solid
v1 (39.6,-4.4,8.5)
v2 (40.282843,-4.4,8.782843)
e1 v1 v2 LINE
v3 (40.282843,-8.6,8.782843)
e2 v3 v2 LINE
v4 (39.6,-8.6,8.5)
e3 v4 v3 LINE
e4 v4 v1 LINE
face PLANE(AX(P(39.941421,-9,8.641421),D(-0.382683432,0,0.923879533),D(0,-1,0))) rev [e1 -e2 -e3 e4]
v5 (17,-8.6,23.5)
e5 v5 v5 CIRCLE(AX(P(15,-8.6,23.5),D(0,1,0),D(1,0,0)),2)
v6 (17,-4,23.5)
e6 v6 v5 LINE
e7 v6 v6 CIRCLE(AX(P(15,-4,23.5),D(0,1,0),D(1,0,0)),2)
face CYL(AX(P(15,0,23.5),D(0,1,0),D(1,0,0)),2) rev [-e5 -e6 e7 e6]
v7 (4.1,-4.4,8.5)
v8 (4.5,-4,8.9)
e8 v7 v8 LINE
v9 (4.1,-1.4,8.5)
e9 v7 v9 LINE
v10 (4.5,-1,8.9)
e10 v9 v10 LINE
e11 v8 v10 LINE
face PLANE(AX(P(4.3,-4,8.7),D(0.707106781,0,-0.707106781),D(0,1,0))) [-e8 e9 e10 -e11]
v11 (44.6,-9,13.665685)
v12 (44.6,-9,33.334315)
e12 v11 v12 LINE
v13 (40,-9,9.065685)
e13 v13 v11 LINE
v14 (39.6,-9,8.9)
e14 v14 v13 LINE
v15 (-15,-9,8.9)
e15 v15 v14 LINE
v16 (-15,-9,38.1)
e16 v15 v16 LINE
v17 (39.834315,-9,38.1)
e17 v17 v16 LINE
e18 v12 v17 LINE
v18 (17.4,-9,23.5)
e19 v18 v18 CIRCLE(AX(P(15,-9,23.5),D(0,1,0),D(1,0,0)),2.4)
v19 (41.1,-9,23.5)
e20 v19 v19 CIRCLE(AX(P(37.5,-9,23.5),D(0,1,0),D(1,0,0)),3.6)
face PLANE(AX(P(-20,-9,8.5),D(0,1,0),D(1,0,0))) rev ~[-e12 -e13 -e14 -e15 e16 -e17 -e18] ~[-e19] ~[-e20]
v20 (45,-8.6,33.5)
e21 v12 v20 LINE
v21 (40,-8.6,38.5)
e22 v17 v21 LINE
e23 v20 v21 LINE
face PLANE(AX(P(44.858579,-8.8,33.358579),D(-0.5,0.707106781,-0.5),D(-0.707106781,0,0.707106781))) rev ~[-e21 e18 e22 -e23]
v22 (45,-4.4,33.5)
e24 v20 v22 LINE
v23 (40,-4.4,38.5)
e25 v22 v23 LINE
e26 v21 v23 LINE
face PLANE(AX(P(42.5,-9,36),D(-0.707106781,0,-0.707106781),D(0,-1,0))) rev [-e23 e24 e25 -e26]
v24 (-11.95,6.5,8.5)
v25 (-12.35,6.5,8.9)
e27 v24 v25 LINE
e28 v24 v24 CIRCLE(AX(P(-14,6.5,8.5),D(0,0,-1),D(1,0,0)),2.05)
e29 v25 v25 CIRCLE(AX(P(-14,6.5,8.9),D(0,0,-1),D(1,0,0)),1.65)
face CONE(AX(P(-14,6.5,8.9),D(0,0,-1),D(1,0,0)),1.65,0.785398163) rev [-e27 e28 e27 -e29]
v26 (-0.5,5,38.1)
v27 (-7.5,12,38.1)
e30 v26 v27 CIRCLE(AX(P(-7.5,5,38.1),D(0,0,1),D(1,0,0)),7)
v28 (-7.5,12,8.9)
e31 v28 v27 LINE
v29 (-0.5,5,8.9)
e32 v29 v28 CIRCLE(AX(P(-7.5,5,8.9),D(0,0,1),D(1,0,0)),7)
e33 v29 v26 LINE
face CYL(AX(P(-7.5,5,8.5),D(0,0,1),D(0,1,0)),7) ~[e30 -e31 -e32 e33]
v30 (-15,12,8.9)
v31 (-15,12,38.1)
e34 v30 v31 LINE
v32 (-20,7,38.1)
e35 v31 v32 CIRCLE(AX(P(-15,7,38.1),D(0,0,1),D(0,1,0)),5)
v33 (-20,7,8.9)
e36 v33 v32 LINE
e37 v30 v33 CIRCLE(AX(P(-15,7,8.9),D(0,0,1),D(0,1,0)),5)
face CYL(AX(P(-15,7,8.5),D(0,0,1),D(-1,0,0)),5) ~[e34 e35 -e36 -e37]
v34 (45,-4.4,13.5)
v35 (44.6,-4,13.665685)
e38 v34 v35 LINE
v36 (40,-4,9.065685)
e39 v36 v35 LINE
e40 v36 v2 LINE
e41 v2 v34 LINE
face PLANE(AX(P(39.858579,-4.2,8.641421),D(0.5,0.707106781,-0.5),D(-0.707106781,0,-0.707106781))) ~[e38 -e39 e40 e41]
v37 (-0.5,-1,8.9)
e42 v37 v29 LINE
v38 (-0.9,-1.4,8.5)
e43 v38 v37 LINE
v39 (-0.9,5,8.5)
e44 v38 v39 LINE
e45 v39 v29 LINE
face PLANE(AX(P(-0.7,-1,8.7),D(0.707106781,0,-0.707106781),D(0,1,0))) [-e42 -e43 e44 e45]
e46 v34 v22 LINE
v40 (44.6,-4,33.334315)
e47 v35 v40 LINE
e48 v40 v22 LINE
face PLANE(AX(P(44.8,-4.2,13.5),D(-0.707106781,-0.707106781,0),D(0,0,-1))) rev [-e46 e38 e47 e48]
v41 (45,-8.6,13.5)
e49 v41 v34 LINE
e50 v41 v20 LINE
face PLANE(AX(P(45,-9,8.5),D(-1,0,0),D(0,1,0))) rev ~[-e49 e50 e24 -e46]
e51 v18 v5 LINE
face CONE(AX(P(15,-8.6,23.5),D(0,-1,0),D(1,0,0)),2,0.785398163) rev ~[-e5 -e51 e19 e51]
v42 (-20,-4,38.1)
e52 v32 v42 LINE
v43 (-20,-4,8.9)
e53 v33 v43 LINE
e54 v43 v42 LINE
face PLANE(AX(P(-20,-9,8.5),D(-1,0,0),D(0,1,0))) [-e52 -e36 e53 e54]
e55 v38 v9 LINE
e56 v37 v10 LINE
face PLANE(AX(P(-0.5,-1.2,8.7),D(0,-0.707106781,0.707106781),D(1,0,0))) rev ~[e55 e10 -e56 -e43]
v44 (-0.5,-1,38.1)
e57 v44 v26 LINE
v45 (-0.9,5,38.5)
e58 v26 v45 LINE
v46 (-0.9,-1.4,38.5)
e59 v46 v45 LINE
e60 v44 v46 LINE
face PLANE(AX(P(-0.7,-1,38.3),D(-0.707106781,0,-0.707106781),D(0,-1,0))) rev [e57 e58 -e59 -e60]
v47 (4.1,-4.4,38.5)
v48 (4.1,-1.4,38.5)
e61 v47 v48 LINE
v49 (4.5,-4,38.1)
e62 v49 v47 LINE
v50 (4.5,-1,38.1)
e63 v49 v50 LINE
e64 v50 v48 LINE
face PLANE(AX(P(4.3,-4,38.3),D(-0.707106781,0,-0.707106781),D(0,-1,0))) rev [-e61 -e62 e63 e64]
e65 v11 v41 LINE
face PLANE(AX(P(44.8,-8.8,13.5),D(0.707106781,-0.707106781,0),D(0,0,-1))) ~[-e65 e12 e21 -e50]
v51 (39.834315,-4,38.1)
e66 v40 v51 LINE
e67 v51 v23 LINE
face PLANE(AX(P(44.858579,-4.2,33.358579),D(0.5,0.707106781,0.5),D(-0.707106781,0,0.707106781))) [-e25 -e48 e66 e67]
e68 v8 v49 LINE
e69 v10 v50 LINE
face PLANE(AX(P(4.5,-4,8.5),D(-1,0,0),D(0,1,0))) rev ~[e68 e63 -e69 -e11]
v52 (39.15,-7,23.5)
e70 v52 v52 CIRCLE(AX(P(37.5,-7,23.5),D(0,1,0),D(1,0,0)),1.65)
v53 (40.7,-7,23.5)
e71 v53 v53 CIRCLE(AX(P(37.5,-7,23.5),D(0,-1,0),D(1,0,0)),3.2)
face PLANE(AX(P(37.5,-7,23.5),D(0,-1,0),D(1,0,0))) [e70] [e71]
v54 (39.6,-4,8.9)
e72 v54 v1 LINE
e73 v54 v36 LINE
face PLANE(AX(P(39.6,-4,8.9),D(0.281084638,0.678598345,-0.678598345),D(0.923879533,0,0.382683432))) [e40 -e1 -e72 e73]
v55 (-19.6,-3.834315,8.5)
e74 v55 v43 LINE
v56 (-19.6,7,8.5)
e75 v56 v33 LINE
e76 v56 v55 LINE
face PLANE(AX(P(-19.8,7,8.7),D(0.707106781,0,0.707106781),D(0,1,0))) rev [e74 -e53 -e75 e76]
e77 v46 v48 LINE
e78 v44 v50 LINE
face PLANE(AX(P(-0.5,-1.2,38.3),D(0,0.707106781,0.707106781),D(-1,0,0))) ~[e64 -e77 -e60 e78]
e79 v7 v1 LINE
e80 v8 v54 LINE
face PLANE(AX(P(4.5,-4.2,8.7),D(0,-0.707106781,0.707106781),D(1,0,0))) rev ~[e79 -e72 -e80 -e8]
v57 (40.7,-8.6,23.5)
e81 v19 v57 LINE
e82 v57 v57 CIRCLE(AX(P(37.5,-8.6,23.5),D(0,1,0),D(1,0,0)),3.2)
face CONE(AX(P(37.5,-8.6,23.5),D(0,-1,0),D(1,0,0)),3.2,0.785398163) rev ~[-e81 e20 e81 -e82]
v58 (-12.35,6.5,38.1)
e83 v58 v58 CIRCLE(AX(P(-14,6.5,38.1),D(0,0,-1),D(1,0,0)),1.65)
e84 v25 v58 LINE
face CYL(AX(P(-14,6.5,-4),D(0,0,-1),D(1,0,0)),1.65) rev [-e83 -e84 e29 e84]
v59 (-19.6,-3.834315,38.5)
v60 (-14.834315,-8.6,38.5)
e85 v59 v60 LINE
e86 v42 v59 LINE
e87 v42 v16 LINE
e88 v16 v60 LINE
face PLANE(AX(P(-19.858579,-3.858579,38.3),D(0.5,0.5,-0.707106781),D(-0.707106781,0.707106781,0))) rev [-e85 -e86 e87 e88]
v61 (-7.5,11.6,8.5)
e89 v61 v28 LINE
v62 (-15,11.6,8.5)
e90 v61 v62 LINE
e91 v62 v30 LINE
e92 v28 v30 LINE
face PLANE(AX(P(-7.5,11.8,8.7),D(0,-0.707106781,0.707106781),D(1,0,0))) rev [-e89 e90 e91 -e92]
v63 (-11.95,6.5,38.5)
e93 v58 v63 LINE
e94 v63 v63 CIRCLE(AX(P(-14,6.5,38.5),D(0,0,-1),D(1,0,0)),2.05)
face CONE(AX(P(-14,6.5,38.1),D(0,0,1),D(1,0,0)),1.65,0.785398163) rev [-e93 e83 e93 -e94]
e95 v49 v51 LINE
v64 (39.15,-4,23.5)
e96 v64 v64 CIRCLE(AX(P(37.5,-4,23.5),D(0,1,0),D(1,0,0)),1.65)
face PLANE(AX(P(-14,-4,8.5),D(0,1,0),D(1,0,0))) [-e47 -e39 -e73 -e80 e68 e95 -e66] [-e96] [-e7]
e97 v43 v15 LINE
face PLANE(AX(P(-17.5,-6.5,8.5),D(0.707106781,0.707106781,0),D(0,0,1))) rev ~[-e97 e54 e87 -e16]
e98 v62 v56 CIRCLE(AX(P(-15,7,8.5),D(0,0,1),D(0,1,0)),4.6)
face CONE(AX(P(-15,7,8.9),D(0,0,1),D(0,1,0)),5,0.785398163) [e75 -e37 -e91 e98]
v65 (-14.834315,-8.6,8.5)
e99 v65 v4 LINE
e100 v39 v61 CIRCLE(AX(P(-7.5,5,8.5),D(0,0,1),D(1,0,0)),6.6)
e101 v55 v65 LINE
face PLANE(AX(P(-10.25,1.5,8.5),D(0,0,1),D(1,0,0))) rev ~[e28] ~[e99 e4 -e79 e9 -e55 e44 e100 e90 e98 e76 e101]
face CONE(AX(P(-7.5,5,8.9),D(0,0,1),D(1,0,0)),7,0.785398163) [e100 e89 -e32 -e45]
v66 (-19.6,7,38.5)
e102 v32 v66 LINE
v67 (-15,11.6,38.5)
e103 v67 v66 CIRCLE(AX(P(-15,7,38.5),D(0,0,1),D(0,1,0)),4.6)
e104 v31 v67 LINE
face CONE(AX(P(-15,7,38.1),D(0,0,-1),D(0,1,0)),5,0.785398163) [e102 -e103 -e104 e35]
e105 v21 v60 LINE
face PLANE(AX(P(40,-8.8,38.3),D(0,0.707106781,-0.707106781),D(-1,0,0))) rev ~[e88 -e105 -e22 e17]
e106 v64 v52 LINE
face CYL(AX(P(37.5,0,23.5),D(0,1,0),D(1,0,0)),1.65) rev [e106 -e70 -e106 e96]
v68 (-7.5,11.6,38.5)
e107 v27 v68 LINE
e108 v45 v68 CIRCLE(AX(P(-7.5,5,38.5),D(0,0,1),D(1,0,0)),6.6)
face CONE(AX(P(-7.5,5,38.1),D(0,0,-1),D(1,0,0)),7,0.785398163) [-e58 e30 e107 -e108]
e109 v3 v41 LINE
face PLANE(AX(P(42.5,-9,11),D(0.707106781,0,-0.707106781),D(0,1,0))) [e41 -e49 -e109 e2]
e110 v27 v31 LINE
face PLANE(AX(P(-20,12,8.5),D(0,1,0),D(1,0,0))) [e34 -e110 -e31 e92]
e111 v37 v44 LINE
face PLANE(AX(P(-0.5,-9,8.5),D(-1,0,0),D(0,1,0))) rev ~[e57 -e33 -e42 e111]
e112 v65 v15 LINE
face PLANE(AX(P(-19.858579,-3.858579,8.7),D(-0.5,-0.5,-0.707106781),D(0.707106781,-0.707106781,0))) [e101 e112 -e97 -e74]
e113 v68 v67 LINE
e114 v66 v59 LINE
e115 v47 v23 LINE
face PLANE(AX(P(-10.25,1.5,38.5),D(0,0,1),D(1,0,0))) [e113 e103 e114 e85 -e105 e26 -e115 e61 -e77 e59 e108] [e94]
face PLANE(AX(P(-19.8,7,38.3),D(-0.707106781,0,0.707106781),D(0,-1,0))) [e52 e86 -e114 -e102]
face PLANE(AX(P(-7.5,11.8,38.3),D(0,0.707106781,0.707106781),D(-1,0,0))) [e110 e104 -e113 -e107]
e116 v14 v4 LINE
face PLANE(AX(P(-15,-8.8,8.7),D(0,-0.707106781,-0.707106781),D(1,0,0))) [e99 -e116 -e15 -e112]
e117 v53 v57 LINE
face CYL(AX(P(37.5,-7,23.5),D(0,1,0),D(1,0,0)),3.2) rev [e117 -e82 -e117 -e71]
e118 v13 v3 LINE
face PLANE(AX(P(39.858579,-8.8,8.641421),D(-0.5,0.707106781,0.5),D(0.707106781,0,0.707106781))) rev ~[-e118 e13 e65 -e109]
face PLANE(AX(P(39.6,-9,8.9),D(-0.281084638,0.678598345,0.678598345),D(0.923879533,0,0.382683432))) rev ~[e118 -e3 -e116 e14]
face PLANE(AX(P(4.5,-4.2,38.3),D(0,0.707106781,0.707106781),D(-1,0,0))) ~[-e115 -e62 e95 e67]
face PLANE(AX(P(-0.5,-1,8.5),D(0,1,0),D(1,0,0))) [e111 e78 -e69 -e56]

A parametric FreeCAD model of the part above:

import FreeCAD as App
import Part
import Sketcher

V = App.Vector


def edges_at(feature, points):
    """Names of the edges that pass closest to the given points."""
    edges = feature.Shape.Edges
    near = lambda p: min(range(len(edges)), key=lambda i: edges[i].distToShape(Part.Vertex(*p))[0])
    return sorted({f"Edge{near(p) + 1}" for p in points})


def add_polygon(sketch, points):
    """Adds a closed chain of lines whose ends are joined by coincident constraints."""
    first, n = sketch.GeometryCount, len(points)
    for a, b in zip(points, points[1:] + points[:1]):
        sketch.addGeometry(Part.LineSegment(App.Vector(*a, 0), App.Vector(*b, 0)), False)
    for i in range(n):
        sketch.addConstraint(Sketcher.Constraint("Coincident", first + i, 2, first + (i + 1) % n, 1))

doc = App.newDocument("Part")
body = doc.addObject("PartDesign::Body", "Body")

# Sketch on XZ plane
sketch1 = body.newObject("Sketcher::SketchObject", "Sketch")
sketch1.AttachmentSupport = (doc.getObject("XZ_Plane"), [""])
sketch1.MapMode = "FlatFace"
sketch1.addGeometry(Part.Circle(V(37.5, 23.5, 0), V(0, 0, 1), 1.65), False)
sketch1.addConstraint([
    Sketcher.Constraint("Diameter", 0, 3.3),
    Sketcher.Constraint("DistanceX", -1, 1, 0, 3, 37.5),
    Sketcher.Constraint("DistanceY", -1, 1, 0, 3, 23.5),
])
pad1 = body.newObject("PartDesign::Pad", "Pad")
pad1.Profile = sketch1
pad1.Length = 10
body2 = doc.addObject("PartDesign::Body", "Body001")

# Sketch on XZ plane
sketch2 = body2.newObject("Sketcher::SketchObject", "Sketch001")
sketch2.AttachmentSupport = (doc.getObject("XZ_Plane001"), [""])
sketch2.MapMode = "FlatFace"
sketch2.AttachmentOffset = App.Placement(V(0, 0, 7), App.Rotation())
sketch2.addGeometry(Part.Circle(V(37.5, 23.5, 0), V(0, 0, 1), 3.2), False)
sketch2.addConstraint([
    Sketcher.Constraint("Diameter", 0, 6.4),
    Sketcher.Constraint("DistanceX", -1, 1, 0, 3, 37.5),
    Sketcher.Constraint("DistanceY", -1, 1, 0, 3, 23.5),
])
pad2 = body2.newObject("PartDesign::Pad", "Pad001")
pad2.Profile = sketch2
pad2.Length = 10
doc.recompute()

boolean = body2.newObject("PartDesign::Boolean", "Boolean")
boolean.Type = "Fuse"
boolean.addObjects([body])
body3 = doc.addObject("PartDesign::Body", "Body002")

# Sketch on XZ plane
sketch3 = body3.newObject("Sketcher::SketchObject", "Sketch002")
sketch3.AttachmentSupport = (doc.getObject("XZ_Plane002"), [""])
sketch3.MapMode = "FlatFace"
sketch3.addGeometry(Part.Circle(V(15, 23.5, 0), V(0, 0, 1), 2), False)
sketch3.addConstraint([
    Sketcher.Constraint("Diameter", 0, 4.0),
    Sketcher.Constraint("DistanceX", -1, 1, 0, 3, 15.0),
    Sketcher.Constraint("DistanceY", -1, 1, 0, 3, 23.5),
])
pad3 = body3.newObject("PartDesign::Pad", "Pad002")
pad3.Profile = sketch3
pad3.Length = 10
body4 = doc.addObject("PartDesign::Body", "Body003")

# Sketch on XY plane
sketch4 = body4.newObject("Sketcher::SketchObject", "Sketch003")
sketch4.AttachmentSupport = (doc.getObject("XY_Plane003"), [""])
sketch4.MapMode = "FlatFace"
sketch4.AttachmentOffset = App.Placement(V(0, 0, -4), App.Rotation())
sketch4.addGeometry(Part.Circle(V(-14, 6.5, 0), V(0, 0, 1), 1.65), False)
sketch4.addConstraint([
    Sketcher.Constraint("Diameter", 0, 3.3),
    Sketcher.Constraint("DistanceX", 0, 3, -1, 1, 14.0),
    Sketcher.Constraint("DistanceY", -1, 1, 0, 3, 6.5),
])
pad4 = body4.newObject("PartDesign::Pad", "Pad003")
pad4.Profile = sketch4
pad4.Length = 50
body5 = doc.addObject("PartDesign::Body", "Body004")

# Sketch on XY plane
sketch5 = body5.newObject("Sketcher::SketchObject", "Sketch004")
sketch5.AttachmentSupport = (doc.getObject("XY_Plane004"), [""])
sketch5.MapMode = "FlatFace"
sketch5.AttachmentOffset = App.Placement(V(0, 0, 8.5), App.Rotation())
add_polygon(sketch5, [(-0.5, -1), (-0.5, -4), (4.5, -4), (4.5, -1)])  # lines 0-3
sketch5.addConstraint([
    Sketcher.Constraint("Vertical", 0),
    Sketcher.Constraint("Horizontal", 1),
    Sketcher.Constraint("Vertical", 2),
    Sketcher.Constraint("Horizontal", 3),
    Sketcher.Constraint("DistanceX", 1, 1, 1, 2, 5.0),
    Sketcher.Constraint("DistanceY", 0, 2, 0, 1, 3.0),
    Sketcher.Constraint("DistanceY", 0, 2, -1, 1, 4.0),
    Sketcher.Constraint("DistanceX", 0, 2, -1, 1, 0.5),
])
pad5 = body5.newObject("PartDesign::Pad", "Pad004")
pad5.Profile = sketch5
pad5.Length = 30
body6 = doc.addObject("PartDesign::Body", "Body005")

# Sketch on XY plane
sketch6 = body6.newObject("Sketcher::SketchObject", "Sketch005")
sketch6.AttachmentSupport = (doc.getObject("XY_Plane005"), [""])
sketch6.MapMode = "FlatFace"
sketch6.AttachmentOffset = App.Placement(V(0, 0, 8.5), App.Rotation())
add_polygon(sketch6, [(-20, 12), (-20, -9), (-0.5, -9), (-0.5, 12)])  # lines 0-3
sketch6.addConstraint([
    Sketcher.Constraint("Vertical", 0),
    Sketcher.Constraint("Horizontal", 1),
    Sketcher.Constraint("Vertical", 2),
    Sketcher.Constraint("Horizontal", 3),
    Sketcher.Constraint("DistanceY", 0, 2, 0, 1, 21.0),
    Sketcher.Constraint("DistanceX", 1, 1, 1, 2, 19.5),
    Sketcher.Constraint("DistanceX", 0, 2, -1, 1, 20.0),
    Sketcher.Constraint("DistanceY", 0, 2, -1, 1, 9.0),
])
pad6 = body6.newObject("PartDesign::Pad", "Pad005")
pad6.Profile = sketch6
pad6.Length = 30
body7 = doc.addObject("PartDesign::Body", "Body006")

# Sketch on XY plane
sketch7 = body7.newObject("Sketcher::SketchObject", "Sketch006")
sketch7.AttachmentSupport = (doc.getObject("XY_Plane006"), [""])
sketch7.MapMode = "FlatFace"
sketch7.AttachmentOffset = App.Placement(V(0, 0, 8.5), App.Rotation())
add_polygon(sketch7, [(-14, -4), (-14, -9), (45, -9), (45, -4)])  # lines 0-3
sketch7.addConstraint([
    Sketcher.Constraint("Vertical", 0),
    Sketcher.Constraint("Horizontal", 1),
    Sketcher.Constraint("Vertical", 2),
    Sketcher.Constraint("Horizontal", 3),
    Sketcher.Constraint("DistanceX", 1, 1, 1, 2, 59.0),
    Sketcher.Constraint("DistanceY", 0, 2, 0, 1, 5.0),
    Sketcher.Constraint("DistanceX", 0, 2, -1, 1, 14.0),
    Sketcher.Constraint("DistanceY", 0, 2, -1, 1, 9.0),
])
pad7 = body7.newObject("PartDesign::Pad", "Pad006")
pad7.Profile = sketch7
pad7.Length = 30
doc.recompute()

boolean2 = body7.newObject("PartDesign::Boolean", "Boolean001")
boolean2.Type = "Fuse"
boolean2.addObjects([body5])
doc.recompute()

boolean3 = body7.newObject("PartDesign::Boolean", "Boolean002")
boolean3.Type = "Fuse"
boolean3.addObjects([body6])
doc.recompute()

boolean4 = body7.newObject("PartDesign::Boolean", "Boolean003")
boolean4.Type = "Cut"
boolean4.addObjects([body4])
doc.recompute()

fillet = body7.newObject("PartDesign::Fillet", "Fillet")
fillet.Base = (boolean4, edges_at(boolean4, [(-20, 12, 23.5)]))
fillet.Radius = 5
doc.recompute()

fillet2 = body7.newObject("PartDesign::Fillet", "Fillet001")
fillet2.Base = (fillet, edges_at(fillet, [(-0.5, 12, 23.5)]))
fillet2.Radius = 7
doc.recompute()

chamfer = body7.newObject("PartDesign::Chamfer", "Chamfer")
chamfer.Base = (fillet2, edges_at(fillet2, [(-20, -9, 23.5)]))
chamfer.Size = 5
doc.recompute()

chamfer2 = body7.newObject("PartDesign::Chamfer", "Chamfer001")
chamfer2.Base = (chamfer, edges_at(chamfer, [(45, -6.5, 8.5), (45, -6.5, 38.5)]))
chamfer2.Size = 5
doc.recompute()

boolean5 = body7.newObject("PartDesign::Boolean", "Boolean004")
boolean5.Type = "Cut"
boolean5.addObjects([body3])
doc.recompute()

boolean6 = body7.newObject("PartDesign::Boolean", "Boolean005")
boolean6.Type = "Cut"
boolean6.addObjects([body2])
doc.recompute()

chamfer3 = body7.newObject("PartDesign::Chamfer", "Chamfer002")
chamfer3.Base = (boolean6, edges_at(boolean6, [
    (34.3, -9, 23.5),
    (22.25, -4, 8.5),
    (42.5, -4, 11),
    (45, -4, 23.5),
    (22.25, -4, 38.5),
    (42.5, -4, 36),
    (42.5, -9, 11),
    (40, -6.5, 8.5),
    (4.5, -2.5, 38.5),
    (4.5, -2.5, 8.5),
    (45, -9, 23.5),
    (42.5, -9, 36),
    (13, -9, 23.5),
    (2, -1, 8.5),
    (2, -1, 38.5),
    (-0.5, 2, 38.5),
    (-0.5, 2, 8.5),
    (-2.55, 9.95, 8.5),
    (-2.55, 9.95, 38.5),
    (-11.25, 12, 8.5),
    (-11.25, 12, 38.5),
    (-18.536, 10.536, 8.5),
    (-18.536, 10.536, 38.5),
    (-20, 1.5, 38.5),
    (-20, 1.5, 8.5),
    (-17.5, -6.5, 8.5),
    (-17.5, -6.5, 38.5),
    (12.5, -9, 8.5),
    (-15.65, 6.5, 8.5),
    (-15.65, 6.5, 38.5),
    (12.5, -9, 38.5),
]))
chamfer3.Size = 0.4

doc.recompute()
